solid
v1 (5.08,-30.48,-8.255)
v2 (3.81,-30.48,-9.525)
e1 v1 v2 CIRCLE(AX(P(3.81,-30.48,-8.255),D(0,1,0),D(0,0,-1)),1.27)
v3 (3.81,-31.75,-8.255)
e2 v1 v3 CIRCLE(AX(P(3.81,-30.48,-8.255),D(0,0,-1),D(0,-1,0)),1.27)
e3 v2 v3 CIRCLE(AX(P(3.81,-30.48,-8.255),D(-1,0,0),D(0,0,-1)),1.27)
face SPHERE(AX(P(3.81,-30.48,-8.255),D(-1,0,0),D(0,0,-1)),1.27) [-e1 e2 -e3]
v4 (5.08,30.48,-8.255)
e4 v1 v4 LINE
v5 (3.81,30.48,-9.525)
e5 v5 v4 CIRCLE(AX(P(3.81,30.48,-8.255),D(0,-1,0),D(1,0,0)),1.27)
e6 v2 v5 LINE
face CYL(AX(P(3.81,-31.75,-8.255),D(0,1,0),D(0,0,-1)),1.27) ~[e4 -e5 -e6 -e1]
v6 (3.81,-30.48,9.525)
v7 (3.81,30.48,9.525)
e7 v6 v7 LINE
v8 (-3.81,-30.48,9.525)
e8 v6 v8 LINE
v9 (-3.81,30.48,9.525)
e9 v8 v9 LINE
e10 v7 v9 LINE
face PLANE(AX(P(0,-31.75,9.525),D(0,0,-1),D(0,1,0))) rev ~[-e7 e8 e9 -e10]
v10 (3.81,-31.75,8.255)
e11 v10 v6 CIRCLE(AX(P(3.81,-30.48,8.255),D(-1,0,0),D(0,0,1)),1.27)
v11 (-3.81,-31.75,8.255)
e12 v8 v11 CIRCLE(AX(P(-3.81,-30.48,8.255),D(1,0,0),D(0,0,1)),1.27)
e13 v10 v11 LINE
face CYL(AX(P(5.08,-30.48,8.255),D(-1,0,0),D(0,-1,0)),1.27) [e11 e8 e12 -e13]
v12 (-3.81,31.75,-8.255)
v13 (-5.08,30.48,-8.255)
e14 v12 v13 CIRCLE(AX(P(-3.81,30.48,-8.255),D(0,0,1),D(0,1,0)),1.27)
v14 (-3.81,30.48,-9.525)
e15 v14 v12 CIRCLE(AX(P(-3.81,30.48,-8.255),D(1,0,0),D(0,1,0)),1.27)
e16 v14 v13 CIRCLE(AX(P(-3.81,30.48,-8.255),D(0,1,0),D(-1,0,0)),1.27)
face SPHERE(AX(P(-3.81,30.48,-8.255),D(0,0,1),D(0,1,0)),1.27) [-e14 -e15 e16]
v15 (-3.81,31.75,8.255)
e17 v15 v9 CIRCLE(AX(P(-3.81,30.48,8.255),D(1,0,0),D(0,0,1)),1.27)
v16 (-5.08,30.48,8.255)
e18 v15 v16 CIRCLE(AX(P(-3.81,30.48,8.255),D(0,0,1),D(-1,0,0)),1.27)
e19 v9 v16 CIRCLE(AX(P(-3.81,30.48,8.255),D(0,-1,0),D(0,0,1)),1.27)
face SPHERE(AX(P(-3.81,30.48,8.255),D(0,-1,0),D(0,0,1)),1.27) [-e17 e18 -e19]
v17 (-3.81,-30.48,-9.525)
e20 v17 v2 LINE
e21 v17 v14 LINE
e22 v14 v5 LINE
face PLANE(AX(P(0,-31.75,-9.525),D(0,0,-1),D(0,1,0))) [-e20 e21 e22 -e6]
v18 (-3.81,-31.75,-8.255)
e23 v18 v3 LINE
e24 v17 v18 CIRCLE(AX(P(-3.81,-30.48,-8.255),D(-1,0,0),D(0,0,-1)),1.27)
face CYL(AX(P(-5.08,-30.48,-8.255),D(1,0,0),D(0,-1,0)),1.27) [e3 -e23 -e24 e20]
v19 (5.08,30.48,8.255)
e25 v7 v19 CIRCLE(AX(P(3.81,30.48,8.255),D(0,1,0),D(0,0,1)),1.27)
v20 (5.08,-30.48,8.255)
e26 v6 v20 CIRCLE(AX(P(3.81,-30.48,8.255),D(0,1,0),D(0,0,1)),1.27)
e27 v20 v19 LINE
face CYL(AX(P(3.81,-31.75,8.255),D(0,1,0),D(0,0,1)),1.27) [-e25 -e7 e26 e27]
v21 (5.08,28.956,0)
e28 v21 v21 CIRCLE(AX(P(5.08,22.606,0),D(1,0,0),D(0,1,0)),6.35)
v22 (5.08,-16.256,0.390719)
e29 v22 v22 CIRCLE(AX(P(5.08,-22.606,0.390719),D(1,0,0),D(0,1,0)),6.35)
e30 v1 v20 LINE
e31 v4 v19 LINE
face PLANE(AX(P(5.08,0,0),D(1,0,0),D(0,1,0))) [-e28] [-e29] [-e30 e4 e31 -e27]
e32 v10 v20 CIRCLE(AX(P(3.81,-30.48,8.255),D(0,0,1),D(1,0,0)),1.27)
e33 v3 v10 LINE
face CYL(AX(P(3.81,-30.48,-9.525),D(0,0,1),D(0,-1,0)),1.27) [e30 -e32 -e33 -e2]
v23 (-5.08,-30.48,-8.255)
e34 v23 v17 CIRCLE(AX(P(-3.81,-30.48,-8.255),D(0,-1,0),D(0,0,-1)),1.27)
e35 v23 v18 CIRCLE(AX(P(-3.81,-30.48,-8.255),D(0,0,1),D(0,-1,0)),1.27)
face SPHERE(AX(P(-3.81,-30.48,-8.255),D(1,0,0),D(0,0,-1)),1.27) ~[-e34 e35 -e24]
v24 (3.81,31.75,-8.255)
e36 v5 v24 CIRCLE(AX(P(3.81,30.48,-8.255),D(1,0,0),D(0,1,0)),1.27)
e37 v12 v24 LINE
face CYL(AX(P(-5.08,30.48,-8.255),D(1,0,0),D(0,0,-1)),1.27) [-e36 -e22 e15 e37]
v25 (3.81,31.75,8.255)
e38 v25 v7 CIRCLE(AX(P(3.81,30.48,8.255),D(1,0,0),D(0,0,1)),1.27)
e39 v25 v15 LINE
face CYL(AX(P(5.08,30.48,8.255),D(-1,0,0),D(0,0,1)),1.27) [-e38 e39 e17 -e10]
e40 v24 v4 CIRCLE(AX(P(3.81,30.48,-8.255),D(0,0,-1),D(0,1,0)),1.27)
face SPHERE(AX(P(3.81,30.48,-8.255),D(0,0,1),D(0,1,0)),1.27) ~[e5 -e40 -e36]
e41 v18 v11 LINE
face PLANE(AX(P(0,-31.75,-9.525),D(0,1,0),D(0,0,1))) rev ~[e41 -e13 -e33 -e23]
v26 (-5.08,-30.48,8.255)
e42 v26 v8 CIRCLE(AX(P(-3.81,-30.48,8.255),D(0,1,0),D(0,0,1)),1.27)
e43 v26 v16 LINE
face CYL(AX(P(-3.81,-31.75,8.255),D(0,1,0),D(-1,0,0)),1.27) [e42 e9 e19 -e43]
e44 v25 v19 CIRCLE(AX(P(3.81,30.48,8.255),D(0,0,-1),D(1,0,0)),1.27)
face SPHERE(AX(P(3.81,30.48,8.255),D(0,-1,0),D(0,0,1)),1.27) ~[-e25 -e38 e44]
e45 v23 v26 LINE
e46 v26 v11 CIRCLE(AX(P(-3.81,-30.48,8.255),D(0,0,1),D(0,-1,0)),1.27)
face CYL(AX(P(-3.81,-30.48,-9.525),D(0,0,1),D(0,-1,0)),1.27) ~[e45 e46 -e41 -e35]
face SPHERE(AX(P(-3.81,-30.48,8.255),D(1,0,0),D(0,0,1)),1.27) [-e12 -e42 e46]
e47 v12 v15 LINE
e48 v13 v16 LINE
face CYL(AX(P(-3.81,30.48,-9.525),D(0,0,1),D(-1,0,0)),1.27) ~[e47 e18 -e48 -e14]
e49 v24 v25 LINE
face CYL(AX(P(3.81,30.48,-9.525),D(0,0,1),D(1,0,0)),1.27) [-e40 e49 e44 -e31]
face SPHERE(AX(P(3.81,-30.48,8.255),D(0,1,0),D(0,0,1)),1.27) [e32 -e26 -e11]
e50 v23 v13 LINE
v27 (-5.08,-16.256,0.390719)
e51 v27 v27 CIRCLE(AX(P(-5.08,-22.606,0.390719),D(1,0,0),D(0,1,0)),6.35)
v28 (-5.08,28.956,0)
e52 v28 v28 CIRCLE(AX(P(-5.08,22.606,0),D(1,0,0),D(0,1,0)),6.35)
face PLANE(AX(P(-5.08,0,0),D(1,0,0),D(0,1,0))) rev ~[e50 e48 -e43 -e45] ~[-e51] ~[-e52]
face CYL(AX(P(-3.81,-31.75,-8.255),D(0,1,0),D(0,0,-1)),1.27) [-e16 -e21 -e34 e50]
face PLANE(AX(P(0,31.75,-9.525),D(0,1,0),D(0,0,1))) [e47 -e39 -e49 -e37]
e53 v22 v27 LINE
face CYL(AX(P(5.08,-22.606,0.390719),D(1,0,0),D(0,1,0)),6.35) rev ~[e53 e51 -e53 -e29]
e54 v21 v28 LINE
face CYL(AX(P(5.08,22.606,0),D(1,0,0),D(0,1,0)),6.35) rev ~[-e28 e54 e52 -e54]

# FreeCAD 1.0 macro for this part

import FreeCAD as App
import Part
import Sketcher

V = App.Vector
Q = App.Units.Quantity


def edges_at(feature, points):
    """Names of the edges that pass closest to the given points."""
    edges = feature.Shape.Edges
    near = lambda p: min(range(len(edges)), key=lambda i: edges[i].distToShape(Part.Vertex(*p))[0])
    return sorted({f"Edge{near(p) + 1}" for p in points})

doc = App.newDocument("Part")
body = doc.addObject("PartDesign::Body", "Body")

# Sketch on YZ plane
sketch1 = body.newObject("Sketcher::SketchObject", "Sketch")
sketch1.AttachmentSupport = (doc.getObject("YZ_Plane"), [""])
sketch1.MapMode = "FlatFace"
sketch1.addGeometry(Part.LineSegment(V(-31.75, 9.525, 0), V(-31.75, -9.525, 0)), False)
sketch1.addGeometry(Part.LineSegment(V(-31.75, -9.525, 0), V(31.75, -9.525, 0)), False)
sketch1.addGeometry(Part.LineSegment(V(31.75, -9.525, 0), V(31.75, 9.525, 0)), False)
sketch1.addGeometry(Part.LineSegment(V(31.75, 9.525, 0), V(-31.75, 9.525, 0)), False)
sketch1.addConstraint(Sketcher.Constraint("Coincident", 0, 2, 1, 1))
sketch1.addConstraint(Sketcher.Constraint("Coincident", 1, 2, 2, 1))
sketch1.addConstraint(Sketcher.Constraint("Coincident", 2, 2, 3, 1))
sketch1.addConstraint(Sketcher.Constraint("Coincident", 3, 2, 0, 1))
sketch1.addConstraint(Sketcher.Constraint("Vertical", 0))
sketch1.addConstraint(Sketcher.Constraint("Horizontal", 1))
sketch1.addConstraint(Sketcher.Constraint("Vertical", 2))
sketch1.addConstraint(Sketcher.Constraint("Horizontal", 3))
sketch1.addConstraint(Sketcher.Constraint("Symmetric", 0, 2, 2, 2, -1, 1))
sketch1.addConstraint(Sketcher.Constraint("DistanceX", 1, 1, 1, 2, Q("2.5 in")))
sketch1.addConstraint(Sketcher.Constraint("DistanceY", 0, 2, 0, 1, Q("0.75 in")))
pad1 = body.newObject("PartDesign::Pad", "Pad")
pad1.Profile = sketch1
pad1.Type = "TwoLengths"
pad1.Length = Q("0.2 in")
pad1.Length2 = Q("0.2 in")

# Sketch on YZ plane
sketch2 = body.newObject("Sketcher::SketchObject", "Sketch001")
sketch2.AttachmentSupport = (doc.getObject("YZ_Plane"), [""])
sketch2.MapMode = "FlatFace"
sketch2.AttachmentOffset = App.Placement(V(0, 0, 0.2 * 25.4), App.Rotation())
sketch2.addGeometry(Part.Circle(V(22.606, 0, 0), V(0, 0, 1), 6.35), False)
sketch2.addGeometry(Part.Circle(V(-22.606, 0.390719, 0), V(0, 0, 1), 6.35), False)
sketch2.addConstraint(Sketcher.Constraint("Equal", 0, 1))
sketch2.addConstraint(Sketcher.Constraint("PointOnObject", 0, 3, -1))
sketch2.addConstraint(Sketcher.Constraint("Diameter", 0, Q("0.5 in")))
sketch2.addConstraint(Sketcher.Constraint("DistanceX", -1, 1, 0, 3, Q("0.89 in")))
sketch2.addConstraint(Sketcher.Constraint("DistanceX", 1, 3, -1, 1, Q("0.89 in")))
sketch2.addConstraint(Sketcher.Constraint("DistanceY", -1, 1, 1, 3, Q("0.390719 mm")))
pocket1 = body.newObject("PartDesign::Pocket", "Pocket")
pocket1.Profile = sketch2
pocket1.Length = Q("1 in")
doc.recompute()

fillet = body.newObject("PartDesign::Fillet", "Fillet")
fillet.Base = (pocket1, edges_at(pocket1, [
    (5.08, 0, 9.525),
    (0, -31.75, 9.525),
    (-5.08, 0, 9.525),
    (0, 31.75, 9.525),
    (5.08, 31.75, 0),
    (-5.08, 31.75, 0),
    (0, 31.75, -9.525),
    (0, -31.75, -9.525),
    (5.08, 0, -9.525),
    (-5.08, 0, -9.525),
    (5.08, -31.75, 0),
    (-5.08, -31.75, 0),
]))
fillet.Radius = Q("0.05 in")

doc.recompute()
